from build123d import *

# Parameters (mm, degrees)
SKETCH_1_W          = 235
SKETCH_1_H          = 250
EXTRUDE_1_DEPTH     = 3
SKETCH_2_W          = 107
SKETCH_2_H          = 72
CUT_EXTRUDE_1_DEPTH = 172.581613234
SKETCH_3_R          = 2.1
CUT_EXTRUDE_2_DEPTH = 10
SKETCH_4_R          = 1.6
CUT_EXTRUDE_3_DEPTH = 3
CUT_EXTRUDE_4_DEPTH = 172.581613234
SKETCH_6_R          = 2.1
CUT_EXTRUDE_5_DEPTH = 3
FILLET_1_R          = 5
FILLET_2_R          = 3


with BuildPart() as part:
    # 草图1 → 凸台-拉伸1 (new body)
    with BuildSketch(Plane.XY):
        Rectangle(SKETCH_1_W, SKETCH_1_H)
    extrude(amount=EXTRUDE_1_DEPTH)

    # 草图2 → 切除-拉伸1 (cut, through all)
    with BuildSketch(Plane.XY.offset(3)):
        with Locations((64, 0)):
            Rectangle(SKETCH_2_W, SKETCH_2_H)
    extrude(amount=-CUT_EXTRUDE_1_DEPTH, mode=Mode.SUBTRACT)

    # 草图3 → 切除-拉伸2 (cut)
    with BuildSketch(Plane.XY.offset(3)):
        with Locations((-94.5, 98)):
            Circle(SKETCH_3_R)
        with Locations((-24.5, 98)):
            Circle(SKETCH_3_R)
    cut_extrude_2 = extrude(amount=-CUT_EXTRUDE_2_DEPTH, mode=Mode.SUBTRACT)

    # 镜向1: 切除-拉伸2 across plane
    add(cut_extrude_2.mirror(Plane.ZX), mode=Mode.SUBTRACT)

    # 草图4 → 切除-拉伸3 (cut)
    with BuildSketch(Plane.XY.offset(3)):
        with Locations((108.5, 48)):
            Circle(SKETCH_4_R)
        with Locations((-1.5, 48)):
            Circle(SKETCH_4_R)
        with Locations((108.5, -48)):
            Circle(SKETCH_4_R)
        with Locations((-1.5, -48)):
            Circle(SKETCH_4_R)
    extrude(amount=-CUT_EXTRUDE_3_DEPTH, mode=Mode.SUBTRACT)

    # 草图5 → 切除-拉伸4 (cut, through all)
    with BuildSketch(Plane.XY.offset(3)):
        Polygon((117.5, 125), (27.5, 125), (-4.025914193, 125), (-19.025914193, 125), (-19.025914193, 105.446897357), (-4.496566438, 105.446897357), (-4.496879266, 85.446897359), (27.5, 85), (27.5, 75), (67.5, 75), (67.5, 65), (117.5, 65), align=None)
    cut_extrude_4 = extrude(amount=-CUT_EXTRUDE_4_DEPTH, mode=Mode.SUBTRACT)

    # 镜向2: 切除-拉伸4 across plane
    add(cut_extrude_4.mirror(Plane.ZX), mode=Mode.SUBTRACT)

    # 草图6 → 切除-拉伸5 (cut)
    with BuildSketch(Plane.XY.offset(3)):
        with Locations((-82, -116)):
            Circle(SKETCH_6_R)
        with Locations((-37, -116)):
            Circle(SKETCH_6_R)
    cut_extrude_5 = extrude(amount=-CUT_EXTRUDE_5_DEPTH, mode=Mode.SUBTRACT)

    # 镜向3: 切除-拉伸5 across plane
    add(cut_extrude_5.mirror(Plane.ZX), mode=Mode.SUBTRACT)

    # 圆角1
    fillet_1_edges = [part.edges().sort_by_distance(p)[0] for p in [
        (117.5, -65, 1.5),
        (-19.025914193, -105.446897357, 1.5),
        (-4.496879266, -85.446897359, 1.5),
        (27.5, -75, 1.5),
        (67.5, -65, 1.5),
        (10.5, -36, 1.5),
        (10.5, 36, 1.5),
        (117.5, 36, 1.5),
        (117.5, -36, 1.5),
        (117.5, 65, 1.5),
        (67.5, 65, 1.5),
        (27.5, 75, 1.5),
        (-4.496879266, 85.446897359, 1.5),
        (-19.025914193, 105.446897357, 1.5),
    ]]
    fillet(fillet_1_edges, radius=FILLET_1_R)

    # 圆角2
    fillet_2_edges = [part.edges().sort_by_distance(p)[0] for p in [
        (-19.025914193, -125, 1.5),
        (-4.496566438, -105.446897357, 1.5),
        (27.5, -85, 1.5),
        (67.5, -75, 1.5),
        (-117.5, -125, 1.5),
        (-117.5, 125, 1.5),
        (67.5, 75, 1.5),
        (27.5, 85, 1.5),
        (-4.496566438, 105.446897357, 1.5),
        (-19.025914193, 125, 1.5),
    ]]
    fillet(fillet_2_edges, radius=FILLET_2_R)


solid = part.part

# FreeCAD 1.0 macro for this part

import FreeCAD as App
import Part
import Sketcher

V = App.Vector
Q = App.Units.Quantity


def edges_at(feature, points):
    """Names of the edges that pass closest to the given points."""
    edges = feature.Shape.Edges
    near = lambda p: min(range(len(edges)), key=lambda i: edges[i].distToShape(Part.Vertex(*p))[0])
    return sorted({f"Edge{near(p) + 1}" for p in points})


def add_polygon(sketch, points):
    """Adds a closed chain of lines whose ends are joined by coincident constraints."""
    first, n = sketch.GeometryCount, len(points)
    for a, b in zip(points, points[1:] + points[:1]):
        sketch.addGeometry(Part.LineSegment(App.Vector(*a, 0), App.Vector(*b, 0)), False)
    for i in range(n):
        sketch.addConstraint(Sketcher.Constraint("Coincident", first + i, 2, first + (i + 1) % n, 1))

doc = App.newDocument("Part")
body = doc.addObject("PartDesign::Body", "Body")

# Sketch on XY plane
sketch1 = body.newObject("Sketcher::SketchObject", "Sketch")
sketch1.AttachmentSupport = (doc.getObject("XY_Plane"), [""])
sketch1.MapMode = "FlatFace"
add_polygon(sketch1, [(-118, 125), (-118, -125), (118, -125), (118, 125)])  # lines 0-3
sketch1.addConstraint([
    Sketcher.Constraint("Vertical", 0),
    Sketcher.Constraint("Horizontal", 1),
    Sketcher.Constraint("Vertical", 2),
    Sketcher.Constraint("Horizontal", 3),
    Sketcher.Constraint("Symmetric", 0, 2, 2, 2, -1, 1),
    Sketcher.Constraint("DistanceX", 1, 1, 1, 2, Q("235 mm")),
    Sketcher.Constraint("DistanceY", 0, 2, 0, 1, Q("250 mm")),
])
pad1 = body.newObject("PartDesign::Pad", "Pad")
pad1.Profile = sketch1
pad1.Length = 3

# Sketch on XY plane
sketch2 = body.newObject("Sketcher::SketchObject", "Sketch001")
sketch2.AttachmentSupport = (doc.getObject("XY_Plane"), [""])
sketch2.MapMode = "FlatFace"
sketch2.AttachmentOffset = App.Placement(V(0, 0, 3), App.Rotation())
add_polygon(sketch2, [(10, 36), (10, -36), (118, -36), (118, 36)])  # lines 0-3
sketch2.addConstraint([
    Sketcher.Constraint("Vertical", 0),
    Sketcher.Constraint("Horizontal", 1),
    Sketcher.Constraint("Vertical", 2),
    Sketcher.Constraint("Horizontal", 3),
    Sketcher.Constraint("DistanceX", 1, 1, 1, 2, Q("107 mm")),
    Sketcher.Constraint("DistanceY", 0, 2, 0, 1, Q("72 mm")),
    Sketcher.Constraint("DistanceY", 0, 2, -1, 1, Q("36 mm")),
    Sketcher.Constraint("DistanceX", -1, 1, 0, 2, Q("10.5 mm")),
])
pocket1 = body.newObject("PartDesign::Pocket", "Pocket")
pocket1.Profile = sketch2
pocket1.Type = "ThroughAll"

# Sketch on XY plane
sketch3 = body.newObject("Sketcher::SketchObject", "Sketch002")
sketch3.AttachmentSupport = (doc.getObject("XY_Plane"), [""])
sketch3.MapMode = "FlatFace"
sketch3.AttachmentOffset = App.Placement(V(0, 0, 3), App.Rotation())
sketch3.addGeometry([
    Part.Circle(V(-94.5, 98, 0), V(0, 0, 1), 2.1),
    Part.Circle(V(-24.5, 98, 0), V(0, 0, 1), 2.1),
], False)
sketch3.addConstraint([
    Sketcher.Constraint("Equal", 0, 1),
    Sketcher.Constraint("Horizontal", 0, 3, 1, 3),
    Sketcher.Constraint("Diameter", 0, Q("4.2 mm")),
    Sketcher.Constraint("DistanceY", -1, 1, 0, 3, Q("98 mm")),
    Sketcher.Constraint("DistanceX", 0, 3, 1, 3, Q("70 mm")),
    Sketcher.Constraint("DistanceX", 0, 3, -1, 1, Q("94.5 mm")),
])
pocket2 = body.newObject("PartDesign::Pocket", "Pocket001")
pocket2.Profile = sketch3
pocket2.Length = 10
doc.recompute()

mirrored = body.newObject("PartDesign::Mirrored", "Mirrored")
mirrored.Originals = [pocket2]
mirrored.MirrorPlane = (doc.getObject("XZ_Plane"), [""])
body.Tip = mirrored

# Sketch on XY plane
sketch4 = body.newObject("Sketcher::SketchObject", "Sketch003")
sketch4.AttachmentSupport = (doc.getObject("XY_Plane"), [""])
sketch4.MapMode = "FlatFace"
sketch4.AttachmentOffset = App.Placement(V(0, 0, 3), App.Rotation())
sketch4.addGeometry([
    Part.Circle(V(108.5, 48, 0), V(0, 0, 1), 1.6),
    Part.Circle(V(-1.5, 48, 0), V(0, 0, 1), 1.6),
    Part.Circle(V(108.5, -48, 0), V(0, 0, 1), 1.6),
    Part.Circle(V(-1.5, -48, 0), V(0, 0, 1), 1.6),
], False)
sketch4.addConstraint([
    Sketcher.Constraint("Equal", 0, 1),
    Sketcher.Constraint("Equal", 1, 2),
    Sketcher.Constraint("Equal", 2, 3),
    Sketcher.Constraint("Symmetric", 0, 3, 2, 3, -1),
    Sketcher.Constraint("Symmetric", 1, 3, 3, 3, -1),
    Sketcher.Constraint("Horizontal", 0, 3, 1, 3),
    Sketcher.Constraint("Diameter", 0, Q("3.2 mm")),
    Sketcher.Constraint("DistanceY", -1, 1, 0, 3, Q("48 mm")),
    Sketcher.Constraint("DistanceX", 1, 3, 0, 3, Q("110 mm")),
    Sketcher.Constraint("DistanceX", -1, 1, 0, 3, Q("108.5 mm")),
])
pocket3 = body.newObject("PartDesign::Pocket", "Pocket002")
pocket3.Profile = sketch4
pocket3.Length = 3

# Sketch on XY plane
sketch5 = body.newObject("Sketcher::SketchObject", "Sketch004")
sketch5.AttachmentSupport = (doc.getObject("XY_Plane"), [""])
sketch5.MapMode = "FlatFace"
sketch5.AttachmentOffset = App.Placement(V(0, 0, 3), App.Rotation())
add_polygon(sketch5, [(118, 125), (-19, 125), (-19, 105), (-4, 105), (-4, 85), (28, 85), (28, 75), (68, 75), (68, 65), (118, 65)])  # lines 0-9
sketch5.addConstraint([
    Sketcher.Constraint("Horizontal", 0),
    Sketcher.Constraint("Vertical", 1),
    Sketcher.Constraint("Horizontal", 2),
    Sketcher.Constraint("Vertical", 5),
    Sketcher.Constraint("Horizontal", 6),
    Sketcher.Constraint("Vertical", 7),
    Sketcher.Constraint("Horizontal", 8),
    Sketcher.Constraint("Vertical", 9),
    Sketcher.Constraint("Equal", 5, 7),
    Sketcher.Constraint("DistanceX", 6, 1, 6, 2, Q("40 mm")),
    Sketcher.Constraint("DistanceX", 8, 1, 8, 2, Q("50 mm")),
    Sketcher.Constraint("DistanceY", 5, 2, 5, 1, Q("10 mm")),
    Sketcher.Constraint("DistanceY", 9, 1, 9, 2, Q("60 mm")),
    Sketcher.Constraint("Distance", 3, Q("20 mm")),
    Sketcher.Constraint("Distance", 4, Q("32 mm")),
    Sketcher.Constraint("DistanceY", -1, 1, 0, 2, Q("125 mm")),
    Sketcher.Constraint("DistanceX", -1, 1, 4, 2, Q("27.5 mm")),
    Sketcher.Constraint("DistanceX", 0, 2, 0, 1, Q("136.525914 mm")),
    Sketcher.Constraint("DistanceX", 2, 1, 2, 2, Q("14.529348 mm")),
    Sketcher.Constraint("DistanceY", 1, 2, 1, 1, Q("19.553103 mm")),
])
pocket4 = body.newObject("PartDesign::Pocket", "Pocket003")
pocket4.Profile = sketch5
pocket4.Type = "ThroughAll"
doc.recompute()

mirrored2 = body.newObject("PartDesign::Mirrored", "Mirrored001")
mirrored2.Originals = [pocket4]
mirrored2.MirrorPlane = (doc.getObject("XZ_Plane"), [""])
body.Tip = mirrored2

# Sketch on XY plane
sketch6 = body.newObject("Sketcher::SketchObject", "Sketch005")
sketch6.AttachmentSupport = (doc.getObject("XY_Plane"), [""])
sketch6.MapMode = "FlatFace"
sketch6.AttachmentOffset = App.Placement(V(0, 0, 3), App.Rotation())
sketch6.addGeometry([
    Part.Circle(V(-82, -116, 0), V(0, 0, 1), 2.1),
    Part.Circle(V(-37, -116, 0), V(0, 0, 1), 2.1),
], False)
sketch6.addConstraint([
    Sketcher.Constraint("Equal", 0, 1),
    Sketcher.Constraint("Horizontal", 0, 3, 1, 3),
    Sketcher.Constraint("Diameter", 0, Q("4.2 mm")),
    Sketcher.Constraint("DistanceX", 0, 3, -1, 1, Q("82 mm")),
    Sketcher.Constraint("DistanceY", 0, 3, -1, 1, Q("116 mm")),
    Sketcher.Constraint("DistanceX", 1, 3, -1, 1, Q("37 mm")),
])
pocket5 = body.newObject("PartDesign::Pocket", "Pocket004")
pocket5.Profile = sketch6
pocket5.Length = 3
doc.recompute()

mirrored3 = body.newObject("PartDesign::Mirrored", "Mirrored002")
mirrored3.Originals = [pocket5]
mirrored3.MirrorPlane = (doc.getObject("XZ_Plane"), [""])
body.Tip = mirrored3
doc.recompute()

fillet = body.newObject("PartDesign::Fillet", "Fillet")
fillet.Base = (mirrored3, edges_at(mirrored3, [
    (117.5, -65, 1.5),
    (-19.026, -105.447, 1.5),
    (-4.497, -85.447, 1.5),
    (27.5, -75, 1.5),
    (67.5, -65, 1.5),
    (10.5, -36, 1.5),
    (10.5, 36, 1.5),
    (117.5, 36, 1.5),
    (117.5, -36, 1.5),
    (117.5, 65, 1.5),
    (67.5, 65, 1.5),
    (27.5, 75, 1.5),
    (-4.497, 85.447, 1.5),
    (-19.026, 105.447, 1.5),
]))
fillet.Radius = 5
doc.recompute()

fillet2 = body.newObject("PartDesign::Fillet", "Fillet001")
fillet2.Base = (fillet, edges_at(fillet, [
    (-19.026, -125, 1.5),
    (-4.497, -105.447, 1.5),
    (27.5, -85, 1.5),
    (67.5, -75, 1.5),
    (-117.5, -125, 1.5),
    (-117.5, 125, 1.5),
    (67.5, 75, 1.5),
    (27.5, 85, 1.5),
    (-4.497, 105.447, 1.5),
    (-19.026, 125, 1.5),
]))
fillet2.Radius = 3

doc.recompute()
